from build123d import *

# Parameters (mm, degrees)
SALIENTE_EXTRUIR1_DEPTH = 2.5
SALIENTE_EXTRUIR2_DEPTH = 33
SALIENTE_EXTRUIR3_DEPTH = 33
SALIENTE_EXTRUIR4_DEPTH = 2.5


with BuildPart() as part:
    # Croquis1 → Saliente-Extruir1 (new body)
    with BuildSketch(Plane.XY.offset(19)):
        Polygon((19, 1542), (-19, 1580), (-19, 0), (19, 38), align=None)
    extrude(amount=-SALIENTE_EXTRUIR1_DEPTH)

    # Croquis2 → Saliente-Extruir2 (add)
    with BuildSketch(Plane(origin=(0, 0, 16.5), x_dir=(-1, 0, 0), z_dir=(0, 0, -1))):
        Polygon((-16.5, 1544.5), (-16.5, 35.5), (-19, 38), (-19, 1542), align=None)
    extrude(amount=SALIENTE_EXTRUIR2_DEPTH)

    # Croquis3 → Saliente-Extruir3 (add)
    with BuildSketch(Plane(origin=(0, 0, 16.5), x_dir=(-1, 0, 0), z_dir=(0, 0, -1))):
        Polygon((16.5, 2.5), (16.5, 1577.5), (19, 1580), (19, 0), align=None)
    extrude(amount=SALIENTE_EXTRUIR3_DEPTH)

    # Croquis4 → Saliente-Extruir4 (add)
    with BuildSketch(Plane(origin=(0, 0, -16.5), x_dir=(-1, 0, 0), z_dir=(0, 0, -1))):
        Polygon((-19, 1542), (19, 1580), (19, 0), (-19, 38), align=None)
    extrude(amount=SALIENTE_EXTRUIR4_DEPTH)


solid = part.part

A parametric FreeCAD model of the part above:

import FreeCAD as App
import Part
import Sketcher

doc = App.newDocument("Part")
body = doc.addObject("PartDesign::Body", "Body")

sketch1 = body.newObject("Sketcher::SketchObject", "Sketch")
sketch1.AttachmentSupport = (doc.getObject("XY_Plane"), [""])
sketch1.MapMode = "FlatFace"
sketch1.AttachmentOffset = App.Placement(App.Vector(0, 0, 19), App.Rotation())
sketch1.addGeometry([
    Part.LineSegment(App.Vector(19, 1542, 0), App.Vector(-19, 1580, 0)),
    Part.LineSegment(App.Vector(-19, 1580, 0), App.Vector(-19, 0, 0)),
    Part.LineSegment(App.Vector(-19, 0, 0), App.Vector(19, 38, 0)),
    Part.LineSegment(App.Vector(19, 38, 0), App.Vector(19, 1542, 0)),
], False)
sketch1.addConstraint([
    Sketcher.Constraint("Coincident", 0, 2, 1, 1),
    Sketcher.Constraint("Coincident", 1, 2, 2, 1),
    Sketcher.Constraint("Coincident", 2, 2, 3, 1),
    Sketcher.Constraint("Coincident", 3, 2, 0, 1),
    Sketcher.Constraint("Vertical", 1),
    Sketcher.Constraint("Vertical", 3),
    Sketcher.Constraint("PointOnObject", 1, 2, -1),
    Sketcher.Constraint("Perpendicular", 0, 2),
    Sketcher.Constraint("Equal", 0, 2),
    Sketcher.Constraint("DistanceY", 1, 2, 1, 1, 1580.0),
    Sketcher.Constraint("DistanceY", 3, 1, 3, 2, 1504.0),
    Sketcher.Constraint("DistanceX", 0, 2, -1, 1, 19.0),
])
pad1 = body.newObject("PartDesign::Pad", "Pad")
pad1.Profile = sketch1
pad1.Length = 2.5
pad1.Reversed = True

sketch2 = body.newObject("Sketcher::SketchObject", "Sketch001")
sketch2.AttachmentSupport = (doc.getObject("XY_Plane"), [""])
sketch2.MapMode = "FlatFace"
sketch2.AttachmentOffset = App.Placement(App.Vector(0, 0, 16.5), App.Rotation())
sketch2.addGeometry([
    Part.LineSegment(App.Vector(16.5, 35.5, 0), App.Vector(16.5, 1544.5, 0)),
    Part.LineSegment(App.Vector(16.5, 1544.5, 0), App.Vector(19, 1542, 0)),
    Part.LineSegment(App.Vector(19, 1542, 0), App.Vector(19, 38, 0)),
    Part.LineSegment(App.Vector(19, 38, 0), App.Vector(16.5, 35.5, 0)),
], False)
sketch2.addConstraint([
    Sketcher.Constraint("Coincident", 0, 2, 1, 1),
    Sketcher.Constraint("Coincident", 1, 2, 2, 1),
    Sketcher.Constraint("Coincident", 2, 2, 3, 1),
    Sketcher.Constraint("Coincident", 3, 2, 0, 1),
    Sketcher.Constraint("Vertical", 0),
    Sketcher.Constraint("Vertical", 2),
    Sketcher.Constraint("Perpendicular", 1, 3),
    Sketcher.Constraint("Equal", 1, 3),
    Sketcher.Constraint("DistanceY", 0, 1, 0, 2, 1509.0),
    Sketcher.Constraint("DistanceY", 2, 2, 2, 1, 1504.0),
    Sketcher.Constraint("DistanceX", -1, 1, 1, 2, 19.0),
    Sketcher.Constraint("DistanceY", -1, 1, 1, 2, 1542.0),
])
pad2 = body.newObject("PartDesign::Pad", "Pad001")
pad2.Profile = sketch2
pad2.Length = 33
pad2.Reversed = True

sketch3 = body.newObject("Sketcher::SketchObject", "Sketch002")
sketch3.AttachmentSupport = (doc.getObject("XY_Plane"), [""])
sketch3.MapMode = "FlatFace"
sketch3.AttachmentOffset = App.Placement(App.Vector(0, 0, 16.5), App.Rotation())
sketch3.addGeometry([
    Part.LineSegment(App.Vector(-16.5, 1577.5, 0), App.Vector(-16.5, 2.5, 0)),
    Part.LineSegment(App.Vector(-16.5, 2.5, 0), App.Vector(-19, 0, 0)),
    Part.LineSegment(App.Vector(-19, 0, 0), App.Vector(-19, 1580, 0)),
    Part.LineSegment(App.Vector(-19, 1580, 0), App.Vector(-16.5, 1577.5, 0)),
], False)
sketch3.addConstraint([
    Sketcher.Constraint("Coincident", 0, 2, 1, 1),
    Sketcher.Constraint("Coincident", 1, 2, 2, 1),
    Sketcher.Constraint("Coincident", 2, 2, 3, 1),
    Sketcher.Constraint("Coincident", 3, 2, 0, 1),
    Sketcher.Constraint("Vertical", 0),
    Sketcher.Constraint("Vertical", 2),
    Sketcher.Constraint("PointOnObject", 1, 2, -1),
    Sketcher.Constraint("Perpendicular", 1, 3),
    Sketcher.Constraint("Equal", 1, 3),
    Sketcher.Constraint("DistanceY", 0, 2, 0, 1, 1575.0),
    Sketcher.Constraint("DistanceY", 2, 1, 2, 2, 1580.0),
    Sketcher.Constraint("DistanceX", 1, 2, -1, 1, 19.0),
])
pad3 = body.newObject("PartDesign::Pad", "Pad002")
pad3.Profile = sketch3
pad3.Length = 33
pad3.Reversed = True

sketch4 = body.newObject("Sketcher::SketchObject", "Sketch003")
sketch4.AttachmentSupport = (doc.getObject("XY_Plane"), [""])
sketch4.MapMode = "FlatFace"
sketch4.AttachmentOffset = App.Placement(App.Vector(0, 0, -16.5), App.Rotation())
sketch4.addGeometry([
    Part.LineSegment(App.Vector(-19, 1580, 0), App.Vector(19, 1542, 0)),
    Part.LineSegment(App.Vector(19, 1542, 0), App.Vector(19, 38, 0)),
    Part.LineSegment(App.Vector(19, 38, 0), App.Vector(-19, 0, 0)),
    Part.LineSegment(App.Vector(-19, 0, 0), App.Vector(-19, 1580, 0)),
], False)
sketch4.addConstraint([
    Sketcher.Constraint("Coincident", 0, 2, 1, 1),
    Sketcher.Constraint("Coincident", 1, 2, 2, 1),
    Sketcher.Constraint("Coincident", 2, 2, 3, 1),
    Sketcher.Constraint("Coincident", 3, 2, 0, 1),
    Sketcher.Constraint("Vertical", 1),
    Sketcher.Constraint("Vertical", 3),
    Sketcher.Constraint("PointOnObject", 2, 2, -1),
    Sketcher.Constraint("Perpendicular", 0, 2),
    Sketcher.Constraint("Equal", 0, 2),
    Sketcher.Constraint("DistanceY", 1, 2, 1, 1, 1504.0),
    Sketcher.Constraint("DistanceY", 3, 1, 3, 2, 1580.0),
    Sketcher.Constraint("DistanceX", -1, 1, 0, 2, 19.0),
])
pad4 = body.newObject("PartDesign::Pad", "Pad003")
pad4.Profile = sketch4
pad4.Length = 2.5
pad4.Reversed = True

doc.recompute()
